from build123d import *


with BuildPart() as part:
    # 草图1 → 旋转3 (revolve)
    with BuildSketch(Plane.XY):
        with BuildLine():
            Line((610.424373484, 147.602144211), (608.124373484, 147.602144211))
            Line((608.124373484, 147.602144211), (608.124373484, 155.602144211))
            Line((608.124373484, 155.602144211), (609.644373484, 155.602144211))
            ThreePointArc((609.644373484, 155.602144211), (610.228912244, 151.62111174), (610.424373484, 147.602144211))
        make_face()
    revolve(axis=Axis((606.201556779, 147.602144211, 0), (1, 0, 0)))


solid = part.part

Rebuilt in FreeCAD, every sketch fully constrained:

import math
import FreeCAD as App
import Part
import Sketcher

doc = App.newDocument("Part")
body = doc.addObject("PartDesign::Body", "Body")

# Sketch on XY plane
sketch1 = doc.addObject("Sketcher::SketchObject", "Sketch")
body.addObject(sketch1)
sketch1.AttachmentSupport = (doc.XY_Plane, [""])
sketch1.MapMode = "FlatFace"
sketch1.addGeometry(Part.LineSegment(App.Vector(608.1, 147.6, 0), App.Vector(610.4, 147.6, 0)), False)
sketch1.addGeometry(Part.ArcOfCircle(Part.Circle(App.Vector(569, 147.6, 0), App.Vector(0, 0, 1), 41.4), math.radians(0), math.radians(11.14)), False)
sketch1.addGeometry(Part.LineSegment(App.Vector(609.6, 155.6, 0), App.Vector(608.1, 155.6, 0)), False)
sketch1.addGeometry(Part.LineSegment(App.Vector(608.1, 155.6, 0), App.Vector(608.1, 147.6, 0)), False)
sketch1.addGeometry(Part.LineSegment(App.Vector(569, 147.6, 0), App.Vector(610.4, 147.6, 0)), True)  # axis
sketch1.addConstraint(Sketcher.Constraint("Coincident", 0, 2, 1, 1))
sketch1.addConstraint(Sketcher.Constraint("Coincident", 1, 2, 2, 1))
sketch1.addConstraint(Sketcher.Constraint("Coincident", 2, 2, 3, 1))
sketch1.addConstraint(Sketcher.Constraint("Coincident", 3, 2, 0, 1))
sketch1.addConstraint(Sketcher.Constraint("Horizontal", 0))
sketch1.addConstraint(Sketcher.Constraint("Horizontal", 2))
sketch1.addConstraint(Sketcher.Constraint("Vertical", 3))
sketch1.addConstraint(Sketcher.Constraint("Horizontal", 4))
sketch1.addConstraint(Sketcher.Constraint("Coincident", 4, 1, 1, 3))
sketch1.addConstraint(Sketcher.Constraint("Coincident", 4, 2, 0, 2))
sketch1.addConstraint(Sketcher.Constraint("DistanceY", 3, 2, 3, 1, 8.0))
sketch1.addConstraint(Sketcher.Constraint("DistanceX", 0, 1, 0, 2, 2.3))
sketch1.addConstraint(Sketcher.Constraint("DistanceX", 2, 2, 2, 1, 1.52))
sketch1.addConstraint(Sketcher.Constraint("DistanceX", -1, 1, 1, 3, 569.008732))
sketch1.addConstraint(Sketcher.Constraint("DistanceY", -1, 1, 1, 3, 147.602144))
revolution = doc.addObject("PartDesign::Revolution", "Revolution")
body.addObject(revolution)
revolution.Profile = sketch1
revolution.ReferenceAxis = (sketch1, ["Axis0"])
revolution.Angle = 360

doc.recompute()
